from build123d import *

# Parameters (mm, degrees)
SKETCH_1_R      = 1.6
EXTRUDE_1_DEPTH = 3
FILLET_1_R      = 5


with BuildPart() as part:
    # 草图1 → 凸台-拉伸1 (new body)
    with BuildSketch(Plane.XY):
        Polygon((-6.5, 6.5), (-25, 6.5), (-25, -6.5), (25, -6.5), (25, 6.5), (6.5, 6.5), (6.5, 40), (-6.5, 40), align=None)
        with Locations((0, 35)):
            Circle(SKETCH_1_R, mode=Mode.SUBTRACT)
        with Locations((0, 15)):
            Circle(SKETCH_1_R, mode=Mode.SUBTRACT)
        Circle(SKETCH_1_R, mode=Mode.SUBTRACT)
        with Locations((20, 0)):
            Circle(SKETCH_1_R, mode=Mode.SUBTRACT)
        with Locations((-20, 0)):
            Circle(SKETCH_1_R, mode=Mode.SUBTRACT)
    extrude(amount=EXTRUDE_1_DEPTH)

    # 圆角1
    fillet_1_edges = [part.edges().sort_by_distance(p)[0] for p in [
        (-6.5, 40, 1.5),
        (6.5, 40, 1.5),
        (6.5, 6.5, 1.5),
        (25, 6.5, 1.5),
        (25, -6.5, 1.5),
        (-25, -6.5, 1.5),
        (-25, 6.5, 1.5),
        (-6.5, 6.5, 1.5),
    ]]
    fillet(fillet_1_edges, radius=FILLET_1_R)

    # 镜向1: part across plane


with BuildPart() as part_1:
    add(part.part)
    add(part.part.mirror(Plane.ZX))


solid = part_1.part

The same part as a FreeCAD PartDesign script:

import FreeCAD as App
import Part
import Sketcher

V = App.Vector


def edges_at(feature, points):
    """Names of the edges that pass closest to the given points."""
    edges = feature.Shape.Edges
    near = lambda p: min(range(len(edges)), key=lambda i: edges[i].distToShape(Part.Vertex(*p))[0])
    return sorted({f"Edge{near(p) + 1}" for p in points})


def add_polygon(sketch, points):
    """Adds a closed chain of lines whose ends are joined by coincident constraints."""
    first, n = sketch.GeometryCount, len(points)
    for a, b in zip(points, points[1:] + points[:1]):
        sketch.addGeometry(Part.LineSegment(App.Vector(*a, 0), App.Vector(*b, 0)), False)
    for i in range(n):
        sketch.addConstraint(Sketcher.Constraint("Coincident", first + i, 2, first + (i + 1) % n, 1))

doc = App.newDocument("Part")
body = doc.addObject("PartDesign::Body", "Body")

sketch1 = body.newObject("Sketcher::SketchObject", "Sketch")
sketch1.AttachmentSupport = (doc.getObject("XY_Plane"), [""])
sketch1.MapMode = "FlatFace"
add_polygon(sketch1, [(-6.5, 6.5), (-25, 6.5), (-25, -6.5), (25, -6.5), (25, 6.5), (6.5, 6.5), (6.5, 40), (-6.5, 40)])
sketch1.addGeometry(Part.Circle(V(-20, 0, 0), V(0, 0, 1), 1.6), False)
sketch1.addGeometry(Part.Circle(V(0, 0, 0), V(0, 0, 1), 1.6), False)
sketch1.addGeometry(Part.Circle(V(20, 0, 0), V(0, 0, 1), 1.6), False)
sketch1.addGeometry(Part.Circle(V(0, 15, 0), V(0, 0, 1), 1.6), False)
sketch1.addGeometry(Part.Circle(V(0, 35, 0), V(0, 0, 1), 1.6), False)
sketch1.addConstraint([
    Sketcher.Constraint("Horizontal", 0),
    Sketcher.Constraint("Vertical", 1),
    Sketcher.Constraint("Horizontal", 2),
    Sketcher.Constraint("Vertical", 3),
    Sketcher.Constraint("Horizontal", 4),
    Sketcher.Constraint("Vertical", 5),
    Sketcher.Constraint("Horizontal", 6),
    Sketcher.Constraint("Vertical", 7),
    Sketcher.Constraint("Coincident", 9, 3, -1, 1),
    Sketcher.Constraint("Equal", 8, 9),
    Sketcher.Constraint("Equal", 9, 10),
    Sketcher.Constraint("Equal", 10, 11),
    Sketcher.Constraint("Equal", 11, 12),
    Sketcher.Constraint("Symmetric", 8, 3, 10, 3, -1, 1),
    Sketcher.Constraint("Symmetric", 0, 2, 2, 2, -1, 1),
    Sketcher.Constraint("Symmetric", 4, 2, 7, 2, -2),
    Sketcher.Constraint("PointOnObject", 8, 3, -1),
    Sketcher.Constraint("PointOnObject", 11, 3, -2),
    Sketcher.Constraint("PointOnObject", 12, 3, -2),
    Sketcher.Constraint("Equal", 6, 1),
    Sketcher.Constraint("Diameter", 8, 3.2),
    Sketcher.Constraint("DistanceX", 2, 1, 2, 2, 50.0),
    Sketcher.Constraint("DistanceX", 6, 2, 6, 1, 13.0),
    Sketcher.Constraint("DistanceY", 5, 1, 5, 2, 33.5),
    Sketcher.Constraint("DistanceX", 8, 3, -1, 1, 20.0),
    Sketcher.Constraint("DistanceY", -1, 1, 11, 3, 15.0),
    Sketcher.Constraint("DistanceY", -1, 1, 12, 3, 35.0),
])
pad1 = body.newObject("PartDesign::Pad", "Pad")
pad1.Profile = sketch1
pad1.Length = 3
doc.recompute()

fillet = body.newObject("PartDesign::Fillet", "Fillet")
fillet.Base = (pad1, edges_at(pad1, [
    (-6.5, 40, 1.5),
    (6.5, 40, 1.5),
    (6.5, 6.5, 1.5),
    (25, 6.5, 1.5),
    (25, -6.5, 1.5),
    (-25, -6.5, 1.5),
    (-25, 6.5, 1.5),
    (-6.5, 6.5, 1.5),
]))
fillet.Radius = 5
body2 = doc.addObject("PartDesign::Body", "Body001")
doc.recompute()

body2.BaseFeature = body
doc.recompute()

mirroring = doc.addObject("Part::Mirroring", "Mirroring")
mirroring.Source = body
mirroring.Base = V(0, 0, 0)
mirroring.Normal = V(0, 1, 0)
body3 = doc.addObject("PartDesign::Body", "Body002")
body3.BaseFeature = mirroring
boolean = body2.newObject("PartDesign::Boolean", "Boolean")
boolean.Type = "Fuse"
boolean.addObjects([body3])
doc.recompute()
mirroring.Visibility = False

doc.recompute()
